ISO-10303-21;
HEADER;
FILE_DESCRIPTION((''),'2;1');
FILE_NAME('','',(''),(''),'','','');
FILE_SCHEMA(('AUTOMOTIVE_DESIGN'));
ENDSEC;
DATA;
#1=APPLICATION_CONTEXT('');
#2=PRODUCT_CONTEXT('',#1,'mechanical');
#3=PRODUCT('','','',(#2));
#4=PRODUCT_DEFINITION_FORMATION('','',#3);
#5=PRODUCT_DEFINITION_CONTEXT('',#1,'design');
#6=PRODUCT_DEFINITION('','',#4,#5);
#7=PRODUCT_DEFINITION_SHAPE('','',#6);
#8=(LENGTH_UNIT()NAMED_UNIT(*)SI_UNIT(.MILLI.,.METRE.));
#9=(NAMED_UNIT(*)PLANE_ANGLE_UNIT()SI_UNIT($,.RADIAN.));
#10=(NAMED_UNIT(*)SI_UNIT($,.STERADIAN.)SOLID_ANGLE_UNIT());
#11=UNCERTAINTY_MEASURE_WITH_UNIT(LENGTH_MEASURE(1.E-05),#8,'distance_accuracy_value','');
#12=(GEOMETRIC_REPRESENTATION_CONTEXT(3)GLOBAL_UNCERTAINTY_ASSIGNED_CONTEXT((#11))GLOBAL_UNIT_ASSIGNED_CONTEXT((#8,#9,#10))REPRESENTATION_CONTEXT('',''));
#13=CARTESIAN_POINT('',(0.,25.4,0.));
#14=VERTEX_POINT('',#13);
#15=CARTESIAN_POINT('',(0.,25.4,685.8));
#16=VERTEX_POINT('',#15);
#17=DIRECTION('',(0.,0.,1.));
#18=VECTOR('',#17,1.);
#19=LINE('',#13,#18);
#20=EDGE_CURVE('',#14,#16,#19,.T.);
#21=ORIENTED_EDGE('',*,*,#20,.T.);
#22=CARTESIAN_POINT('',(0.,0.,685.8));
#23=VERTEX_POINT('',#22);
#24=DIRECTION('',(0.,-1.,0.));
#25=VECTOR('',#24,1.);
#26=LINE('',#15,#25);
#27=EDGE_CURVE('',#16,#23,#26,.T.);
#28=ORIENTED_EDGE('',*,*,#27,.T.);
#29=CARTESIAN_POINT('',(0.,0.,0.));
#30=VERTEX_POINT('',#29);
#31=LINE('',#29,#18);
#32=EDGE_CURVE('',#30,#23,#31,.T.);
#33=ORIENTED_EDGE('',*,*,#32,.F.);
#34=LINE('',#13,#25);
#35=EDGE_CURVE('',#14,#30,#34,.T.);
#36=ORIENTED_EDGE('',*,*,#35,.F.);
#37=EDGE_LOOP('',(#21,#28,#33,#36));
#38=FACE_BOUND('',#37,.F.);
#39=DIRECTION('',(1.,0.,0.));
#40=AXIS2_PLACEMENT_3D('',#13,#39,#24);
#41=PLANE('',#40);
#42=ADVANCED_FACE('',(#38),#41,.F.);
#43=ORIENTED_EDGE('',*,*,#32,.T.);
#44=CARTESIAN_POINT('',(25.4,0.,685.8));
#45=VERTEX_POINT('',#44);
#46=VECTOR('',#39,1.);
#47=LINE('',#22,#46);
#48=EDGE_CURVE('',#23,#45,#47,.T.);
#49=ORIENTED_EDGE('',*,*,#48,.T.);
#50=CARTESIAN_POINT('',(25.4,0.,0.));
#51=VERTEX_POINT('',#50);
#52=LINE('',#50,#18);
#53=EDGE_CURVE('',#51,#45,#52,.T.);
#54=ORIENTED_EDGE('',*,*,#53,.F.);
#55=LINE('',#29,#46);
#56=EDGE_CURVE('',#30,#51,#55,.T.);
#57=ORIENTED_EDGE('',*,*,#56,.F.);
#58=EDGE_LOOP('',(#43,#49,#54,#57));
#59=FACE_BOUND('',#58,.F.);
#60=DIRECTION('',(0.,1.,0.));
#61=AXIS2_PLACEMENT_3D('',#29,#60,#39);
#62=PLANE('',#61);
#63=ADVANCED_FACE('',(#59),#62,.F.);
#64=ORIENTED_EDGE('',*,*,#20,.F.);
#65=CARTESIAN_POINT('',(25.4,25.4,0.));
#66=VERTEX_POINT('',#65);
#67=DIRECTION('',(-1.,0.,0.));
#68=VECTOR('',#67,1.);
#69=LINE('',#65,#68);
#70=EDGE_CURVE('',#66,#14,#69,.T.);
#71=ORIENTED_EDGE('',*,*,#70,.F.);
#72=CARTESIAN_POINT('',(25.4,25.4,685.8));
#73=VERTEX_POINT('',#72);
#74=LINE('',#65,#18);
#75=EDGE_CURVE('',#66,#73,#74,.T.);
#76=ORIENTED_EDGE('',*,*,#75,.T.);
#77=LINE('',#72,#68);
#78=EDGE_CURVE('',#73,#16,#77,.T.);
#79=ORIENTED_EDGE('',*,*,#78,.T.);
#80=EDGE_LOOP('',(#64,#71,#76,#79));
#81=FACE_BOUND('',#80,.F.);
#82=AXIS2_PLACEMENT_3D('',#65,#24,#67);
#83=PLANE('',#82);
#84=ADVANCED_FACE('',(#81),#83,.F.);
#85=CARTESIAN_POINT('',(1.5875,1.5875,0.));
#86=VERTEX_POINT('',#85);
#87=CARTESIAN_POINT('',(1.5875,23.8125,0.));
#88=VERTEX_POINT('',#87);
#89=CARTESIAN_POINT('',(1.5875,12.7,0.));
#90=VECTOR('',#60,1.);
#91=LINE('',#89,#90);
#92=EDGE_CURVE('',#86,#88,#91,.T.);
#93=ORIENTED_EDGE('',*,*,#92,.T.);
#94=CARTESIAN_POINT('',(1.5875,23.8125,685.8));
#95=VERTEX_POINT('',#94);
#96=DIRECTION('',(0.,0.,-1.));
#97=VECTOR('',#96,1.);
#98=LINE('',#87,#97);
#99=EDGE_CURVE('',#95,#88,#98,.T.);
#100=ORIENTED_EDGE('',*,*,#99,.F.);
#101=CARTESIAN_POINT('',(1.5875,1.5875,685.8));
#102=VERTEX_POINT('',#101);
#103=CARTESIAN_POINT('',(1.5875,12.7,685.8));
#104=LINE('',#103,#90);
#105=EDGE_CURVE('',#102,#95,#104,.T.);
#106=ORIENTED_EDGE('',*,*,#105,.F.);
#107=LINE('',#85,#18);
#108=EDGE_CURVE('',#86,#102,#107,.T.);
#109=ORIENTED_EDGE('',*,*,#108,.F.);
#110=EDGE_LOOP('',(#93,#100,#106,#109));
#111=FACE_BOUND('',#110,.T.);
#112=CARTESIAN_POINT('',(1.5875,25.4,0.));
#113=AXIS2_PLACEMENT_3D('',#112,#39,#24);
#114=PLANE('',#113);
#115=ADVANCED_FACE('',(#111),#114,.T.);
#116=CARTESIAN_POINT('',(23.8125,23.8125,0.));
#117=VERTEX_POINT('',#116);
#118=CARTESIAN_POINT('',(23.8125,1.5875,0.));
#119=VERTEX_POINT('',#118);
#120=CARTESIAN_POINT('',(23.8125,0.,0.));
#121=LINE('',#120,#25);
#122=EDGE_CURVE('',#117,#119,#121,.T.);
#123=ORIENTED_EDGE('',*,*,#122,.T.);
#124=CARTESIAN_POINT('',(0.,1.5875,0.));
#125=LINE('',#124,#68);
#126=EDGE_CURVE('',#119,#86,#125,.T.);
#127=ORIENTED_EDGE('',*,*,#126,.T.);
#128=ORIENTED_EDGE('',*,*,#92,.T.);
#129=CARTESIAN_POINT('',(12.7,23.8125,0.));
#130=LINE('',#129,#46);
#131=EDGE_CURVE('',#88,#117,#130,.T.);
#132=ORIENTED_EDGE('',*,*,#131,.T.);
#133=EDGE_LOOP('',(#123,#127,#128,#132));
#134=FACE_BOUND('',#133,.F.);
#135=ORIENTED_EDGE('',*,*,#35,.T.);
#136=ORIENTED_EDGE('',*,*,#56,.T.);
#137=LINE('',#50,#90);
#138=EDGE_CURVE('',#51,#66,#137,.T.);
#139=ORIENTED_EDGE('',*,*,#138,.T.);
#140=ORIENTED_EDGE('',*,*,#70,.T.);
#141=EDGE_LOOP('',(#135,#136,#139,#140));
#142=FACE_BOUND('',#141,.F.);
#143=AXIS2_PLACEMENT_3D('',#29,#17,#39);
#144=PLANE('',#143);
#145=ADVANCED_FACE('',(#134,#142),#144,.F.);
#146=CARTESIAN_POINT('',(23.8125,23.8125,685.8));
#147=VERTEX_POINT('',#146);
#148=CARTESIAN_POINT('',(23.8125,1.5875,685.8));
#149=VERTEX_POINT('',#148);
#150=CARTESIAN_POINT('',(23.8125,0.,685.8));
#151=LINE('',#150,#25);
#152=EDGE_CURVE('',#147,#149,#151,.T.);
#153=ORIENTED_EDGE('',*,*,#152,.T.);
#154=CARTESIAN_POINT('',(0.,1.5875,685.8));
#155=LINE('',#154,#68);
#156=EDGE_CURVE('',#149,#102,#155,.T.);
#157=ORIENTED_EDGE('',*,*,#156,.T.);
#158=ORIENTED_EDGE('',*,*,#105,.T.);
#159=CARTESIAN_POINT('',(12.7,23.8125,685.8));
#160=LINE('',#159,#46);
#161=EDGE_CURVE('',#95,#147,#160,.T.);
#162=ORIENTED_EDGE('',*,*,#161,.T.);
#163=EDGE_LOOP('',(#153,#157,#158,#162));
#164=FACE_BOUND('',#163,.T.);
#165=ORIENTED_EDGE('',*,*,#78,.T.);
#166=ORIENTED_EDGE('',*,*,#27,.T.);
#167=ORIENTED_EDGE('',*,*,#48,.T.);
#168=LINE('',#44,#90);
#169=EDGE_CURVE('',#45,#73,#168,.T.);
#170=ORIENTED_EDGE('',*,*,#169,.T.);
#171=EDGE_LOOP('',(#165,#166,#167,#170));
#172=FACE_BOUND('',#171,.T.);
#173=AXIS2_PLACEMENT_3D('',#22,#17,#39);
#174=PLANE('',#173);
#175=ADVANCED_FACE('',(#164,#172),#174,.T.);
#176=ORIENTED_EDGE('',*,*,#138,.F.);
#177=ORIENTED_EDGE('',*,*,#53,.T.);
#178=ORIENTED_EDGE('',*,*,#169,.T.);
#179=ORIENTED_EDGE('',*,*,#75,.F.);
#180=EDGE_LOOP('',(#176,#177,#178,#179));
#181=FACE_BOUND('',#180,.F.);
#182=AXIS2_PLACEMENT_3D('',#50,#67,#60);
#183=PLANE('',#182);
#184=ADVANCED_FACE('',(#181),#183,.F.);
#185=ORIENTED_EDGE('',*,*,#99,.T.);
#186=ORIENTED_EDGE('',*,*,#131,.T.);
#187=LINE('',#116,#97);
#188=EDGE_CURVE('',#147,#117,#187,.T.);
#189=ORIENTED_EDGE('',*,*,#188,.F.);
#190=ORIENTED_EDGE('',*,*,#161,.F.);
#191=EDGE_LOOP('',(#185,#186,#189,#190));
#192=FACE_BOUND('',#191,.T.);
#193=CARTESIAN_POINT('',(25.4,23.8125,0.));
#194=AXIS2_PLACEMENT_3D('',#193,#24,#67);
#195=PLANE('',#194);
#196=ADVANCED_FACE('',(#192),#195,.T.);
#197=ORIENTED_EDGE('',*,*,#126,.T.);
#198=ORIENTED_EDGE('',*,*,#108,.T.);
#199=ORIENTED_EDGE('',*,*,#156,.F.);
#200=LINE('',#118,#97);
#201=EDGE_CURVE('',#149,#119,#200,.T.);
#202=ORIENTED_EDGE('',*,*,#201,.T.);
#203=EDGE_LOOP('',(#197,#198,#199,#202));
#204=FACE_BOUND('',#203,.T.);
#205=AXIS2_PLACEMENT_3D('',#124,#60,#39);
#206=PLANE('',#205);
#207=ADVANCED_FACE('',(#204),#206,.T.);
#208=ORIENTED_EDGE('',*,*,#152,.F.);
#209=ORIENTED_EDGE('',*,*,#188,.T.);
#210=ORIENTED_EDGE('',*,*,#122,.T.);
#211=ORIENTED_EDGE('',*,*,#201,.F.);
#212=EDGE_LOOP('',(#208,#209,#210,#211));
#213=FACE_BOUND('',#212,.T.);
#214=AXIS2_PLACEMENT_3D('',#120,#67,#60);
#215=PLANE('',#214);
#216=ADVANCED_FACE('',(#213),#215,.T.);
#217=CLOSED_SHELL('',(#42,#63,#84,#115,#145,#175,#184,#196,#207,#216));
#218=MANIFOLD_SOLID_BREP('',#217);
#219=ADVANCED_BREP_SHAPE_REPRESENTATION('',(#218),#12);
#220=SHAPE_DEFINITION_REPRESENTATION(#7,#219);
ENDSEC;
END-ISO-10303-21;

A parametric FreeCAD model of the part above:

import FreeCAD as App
import Part
import Sketcher
Q = App.Units.Quantity


def faces_at(feature, points):
    """Names of the faces that lie closest to the given points."""
    faces = feature.Shape.Faces
    near = lambda p: min(range(len(faces)), key=lambda i: faces[i].distToShape(Part.Vertex(*p))[0])
    return sorted({f"Face{near(p) + 1}" for p in points})


def add_polygon(sketch, points):
    """Adds a closed chain of lines whose ends are joined by coincident constraints."""
    first, n = sketch.GeometryCount, len(points)
    for a, b in zip(points, points[1:] + points[:1]):
        sketch.addGeometry(Part.LineSegment(App.Vector(*a, 0), App.Vector(*b, 0)), False)
    for i in range(n):
        sketch.addConstraint(Sketcher.Constraint("Coincident", first + i, 2, first + (i + 1) % n, 1))

doc = App.newDocument("Part")
body = doc.addObject("PartDesign::Body", "Body")

# Sketch on XY plane
sketch1 = body.newObject("Sketcher::SketchObject", "Sketch")
sketch1.AttachmentSupport = (doc.getObject("XY_Plane"), [""])
sketch1.MapMode = "FlatFace"
add_polygon(sketch1, [(0, 25), (0, 0), (25, 0), (25, 25)])  # lines 0-3
sketch1.addConstraint([
    Sketcher.Constraint("Vertical", 0),
    Sketcher.Constraint("Horizontal", 1),
    Sketcher.Constraint("Vertical", 2),
    Sketcher.Constraint("Horizontal", 3),
    Sketcher.Constraint("Coincident", 0, 2, -1, 1),
    Sketcher.Constraint("Equal", 3, 0),
    Sketcher.Constraint("DistanceX", 1, 1, 1, 2, Q("1 in")),
])
pad1 = body.newObject("PartDesign::Pad", "Pad")
pad1.Profile = sketch1
pad1.Length = Q("27 in")
doc.recompute()

thickness = body.newObject("PartDesign::Thickness", "Thickness")
thickness.Base = (pad1, faces_at(pad1, [(16.933, 8.467, 0), (16.933, 8.467, 685.8)]))
thickness.Value = Q("0.0625 in")
thickness.Reversed = True
thickness.Join = "Intersection"

doc.recompute()
